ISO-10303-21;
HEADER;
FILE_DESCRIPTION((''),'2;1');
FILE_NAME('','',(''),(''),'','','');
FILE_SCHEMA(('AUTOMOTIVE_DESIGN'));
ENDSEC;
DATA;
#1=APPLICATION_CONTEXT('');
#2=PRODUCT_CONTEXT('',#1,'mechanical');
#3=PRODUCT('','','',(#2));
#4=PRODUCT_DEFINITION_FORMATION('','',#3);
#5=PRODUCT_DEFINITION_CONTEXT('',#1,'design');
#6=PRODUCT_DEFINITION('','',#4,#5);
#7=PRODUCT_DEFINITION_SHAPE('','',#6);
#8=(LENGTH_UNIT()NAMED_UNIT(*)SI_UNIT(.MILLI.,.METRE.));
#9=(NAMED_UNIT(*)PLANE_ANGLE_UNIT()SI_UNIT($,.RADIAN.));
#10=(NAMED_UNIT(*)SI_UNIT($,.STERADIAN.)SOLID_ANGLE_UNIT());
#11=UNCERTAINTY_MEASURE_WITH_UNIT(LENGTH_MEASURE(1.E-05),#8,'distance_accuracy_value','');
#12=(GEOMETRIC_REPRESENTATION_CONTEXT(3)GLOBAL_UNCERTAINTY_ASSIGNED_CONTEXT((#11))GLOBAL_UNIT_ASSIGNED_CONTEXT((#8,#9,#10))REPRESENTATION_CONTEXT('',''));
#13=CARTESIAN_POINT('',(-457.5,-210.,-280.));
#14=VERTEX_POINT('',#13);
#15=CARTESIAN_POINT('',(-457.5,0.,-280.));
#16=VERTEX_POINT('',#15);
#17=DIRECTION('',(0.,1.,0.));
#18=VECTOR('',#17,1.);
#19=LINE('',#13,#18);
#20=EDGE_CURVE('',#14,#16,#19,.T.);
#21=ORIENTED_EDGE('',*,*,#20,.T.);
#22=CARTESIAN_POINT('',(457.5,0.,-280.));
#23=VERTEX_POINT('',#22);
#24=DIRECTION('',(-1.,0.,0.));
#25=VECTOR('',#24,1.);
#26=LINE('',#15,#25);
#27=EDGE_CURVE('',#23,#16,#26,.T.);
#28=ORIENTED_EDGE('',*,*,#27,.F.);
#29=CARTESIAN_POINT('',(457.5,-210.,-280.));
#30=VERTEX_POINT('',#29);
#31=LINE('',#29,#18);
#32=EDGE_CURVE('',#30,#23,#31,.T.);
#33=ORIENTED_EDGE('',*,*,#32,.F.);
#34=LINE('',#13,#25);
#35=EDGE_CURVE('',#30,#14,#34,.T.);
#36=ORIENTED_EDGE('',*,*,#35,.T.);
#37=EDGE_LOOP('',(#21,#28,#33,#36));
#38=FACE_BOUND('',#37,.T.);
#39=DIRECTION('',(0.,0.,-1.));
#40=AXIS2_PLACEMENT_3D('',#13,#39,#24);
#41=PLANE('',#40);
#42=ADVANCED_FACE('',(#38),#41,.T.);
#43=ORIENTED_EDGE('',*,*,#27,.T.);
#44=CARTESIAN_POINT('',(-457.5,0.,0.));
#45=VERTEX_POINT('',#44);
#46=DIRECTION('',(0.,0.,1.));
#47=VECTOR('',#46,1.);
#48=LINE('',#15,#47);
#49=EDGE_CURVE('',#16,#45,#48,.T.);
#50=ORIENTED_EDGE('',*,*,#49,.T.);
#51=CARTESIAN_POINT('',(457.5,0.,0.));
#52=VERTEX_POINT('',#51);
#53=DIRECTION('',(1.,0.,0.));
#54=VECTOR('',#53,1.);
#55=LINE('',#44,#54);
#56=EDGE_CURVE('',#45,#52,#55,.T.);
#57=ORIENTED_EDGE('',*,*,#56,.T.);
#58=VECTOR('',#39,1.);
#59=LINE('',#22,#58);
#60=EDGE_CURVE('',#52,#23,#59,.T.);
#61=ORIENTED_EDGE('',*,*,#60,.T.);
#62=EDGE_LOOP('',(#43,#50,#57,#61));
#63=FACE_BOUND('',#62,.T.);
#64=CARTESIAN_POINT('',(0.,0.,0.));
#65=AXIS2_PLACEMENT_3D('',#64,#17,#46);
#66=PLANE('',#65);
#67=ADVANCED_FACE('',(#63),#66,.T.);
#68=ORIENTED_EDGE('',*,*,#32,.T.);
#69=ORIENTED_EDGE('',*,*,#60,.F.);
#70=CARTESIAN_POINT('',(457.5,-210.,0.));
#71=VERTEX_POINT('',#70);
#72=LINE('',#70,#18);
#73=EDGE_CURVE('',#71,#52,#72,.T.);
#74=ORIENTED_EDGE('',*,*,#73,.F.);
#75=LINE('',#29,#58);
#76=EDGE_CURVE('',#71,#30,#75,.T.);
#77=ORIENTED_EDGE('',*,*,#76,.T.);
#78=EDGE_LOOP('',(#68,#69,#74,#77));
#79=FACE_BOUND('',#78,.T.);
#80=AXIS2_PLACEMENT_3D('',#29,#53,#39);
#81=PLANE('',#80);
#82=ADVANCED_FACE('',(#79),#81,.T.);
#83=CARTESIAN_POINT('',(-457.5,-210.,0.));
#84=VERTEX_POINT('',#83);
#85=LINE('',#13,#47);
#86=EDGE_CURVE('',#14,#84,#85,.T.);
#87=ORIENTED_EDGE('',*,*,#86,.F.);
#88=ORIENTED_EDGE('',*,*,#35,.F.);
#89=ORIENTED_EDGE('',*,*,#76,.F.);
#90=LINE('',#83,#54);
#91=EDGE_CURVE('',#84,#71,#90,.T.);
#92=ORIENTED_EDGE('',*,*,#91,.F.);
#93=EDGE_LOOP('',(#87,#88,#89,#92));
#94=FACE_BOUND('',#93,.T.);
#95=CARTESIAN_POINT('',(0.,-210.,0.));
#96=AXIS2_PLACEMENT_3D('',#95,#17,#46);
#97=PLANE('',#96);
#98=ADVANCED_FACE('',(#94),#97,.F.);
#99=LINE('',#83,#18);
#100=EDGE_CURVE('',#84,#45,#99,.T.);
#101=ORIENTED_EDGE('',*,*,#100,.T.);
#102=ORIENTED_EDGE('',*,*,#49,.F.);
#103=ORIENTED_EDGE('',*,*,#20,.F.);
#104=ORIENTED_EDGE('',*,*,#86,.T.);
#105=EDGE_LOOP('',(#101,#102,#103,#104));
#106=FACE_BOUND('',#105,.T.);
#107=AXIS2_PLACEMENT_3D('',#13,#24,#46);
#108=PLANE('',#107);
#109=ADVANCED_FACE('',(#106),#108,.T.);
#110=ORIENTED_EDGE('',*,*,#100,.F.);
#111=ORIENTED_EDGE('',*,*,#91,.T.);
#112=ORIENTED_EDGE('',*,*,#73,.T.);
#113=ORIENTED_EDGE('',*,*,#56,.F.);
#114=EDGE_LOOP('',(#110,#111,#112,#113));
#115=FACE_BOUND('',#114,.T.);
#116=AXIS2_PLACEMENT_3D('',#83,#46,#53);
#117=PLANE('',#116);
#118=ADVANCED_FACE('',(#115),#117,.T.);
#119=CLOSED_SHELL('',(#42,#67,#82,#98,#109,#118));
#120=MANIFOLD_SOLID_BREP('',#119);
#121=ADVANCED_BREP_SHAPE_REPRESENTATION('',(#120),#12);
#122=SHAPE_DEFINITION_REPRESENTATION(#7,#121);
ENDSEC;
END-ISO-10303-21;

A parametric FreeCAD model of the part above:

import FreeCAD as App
import Part
import Sketcher
Q = App.Units.Quantity


def add_polygon(sketch, points):
    """Adds a closed chain of lines whose ends are joined by coincident constraints."""
    first, n = sketch.GeometryCount, len(points)
    for a, b in zip(points, points[1:] + points[:1]):
        sketch.addGeometry(Part.LineSegment(App.Vector(*a, 0), App.Vector(*b, 0)), False)
    for i in range(n):
        sketch.addConstraint(Sketcher.Constraint("Coincident", first + i, 2, first + (i + 1) % n, 1))

doc = App.newDocument("Part")
params = doc.addObject("Spreadsheet::Sheet", "Params")
for row, (alias, value) in enumerate([
    ("sketch1_width", "915 mm"),
    ("sketch1_height", "280 mm"),
    ("pad1_length", "210 mm"),
], start=1):
    params.set(f"A{row}", alias)
    params.set(f"B{row}", "=" + value)
    params.setAlias(f"B{row}", alias)

body = doc.addObject("PartDesign::Body", "Body")

# Sketch on XZ plane
sketch1 = body.newObject("Sketcher::SketchObject", "Sketch")
sketch1.AttachmentSupport = (doc.getObject("XZ_Plane"), [""])
sketch1.MapMode = "FlatFace"
add_polygon(sketch1, [(-457.5, -280), (-457.5, 0), (457.5, 0), (457.5, -280)])  # lines 0-3
sketch1.addConstraint(Sketcher.Constraint("Vertical", 0))
sketch1.addConstraint(Sketcher.Constraint("Horizontal", 1))
sketch1.addConstraint(Sketcher.Constraint("Vertical", 2))
sketch1.addConstraint(Sketcher.Constraint("Horizontal", 3))
sketch1.addConstraint(Sketcher.Constraint("Symmetric", 0, 2, 1, 2, -1, 1))
sketch1.addConstraint(Sketcher.Constraint("DistanceX", 1, 1, 1, 2, Q("915 mm")))
sketch1.addConstraint(Sketcher.Constraint("DistanceY", 0, 1, 0, 2, Q("280 mm")))
sketch1.setExpression("Constraints[9]", "Params.sketch1_width")
sketch1.setExpression("Constraints[10]", "Params.sketch1_height")
pad1 = body.newObject("PartDesign::Pad", "Pad")
pad1.Profile = sketch1
pad1.setExpression("Length", "Params.pad1_length")

doc.recompute()
